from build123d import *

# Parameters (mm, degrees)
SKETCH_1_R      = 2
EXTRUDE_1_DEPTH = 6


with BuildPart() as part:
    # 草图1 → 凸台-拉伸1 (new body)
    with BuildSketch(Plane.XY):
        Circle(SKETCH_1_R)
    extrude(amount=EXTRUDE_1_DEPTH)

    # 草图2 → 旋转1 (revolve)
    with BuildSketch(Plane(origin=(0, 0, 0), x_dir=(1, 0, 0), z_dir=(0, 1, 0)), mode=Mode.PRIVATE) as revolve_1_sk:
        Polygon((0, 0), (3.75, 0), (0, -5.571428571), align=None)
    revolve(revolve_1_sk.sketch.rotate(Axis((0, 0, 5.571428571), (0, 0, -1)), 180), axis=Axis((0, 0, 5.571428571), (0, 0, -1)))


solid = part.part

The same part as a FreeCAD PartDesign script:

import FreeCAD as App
import Part
import Sketcher
from FreeCAD import Vector
Q = App.Units.Quantity


def add_polygon(sketch, points):
    """Adds a closed chain of lines whose ends are joined by coincident constraints."""
    first, n = sketch.GeometryCount, len(points)
    for a, b in zip(points, points[1:] + points[:1]):
        sketch.addGeometry(Part.LineSegment(App.Vector(*a, 0), App.Vector(*b, 0)), False)
    for i in range(n):
        sketch.addConstraint(Sketcher.Constraint("Coincident", first + i, 2, first + (i + 1) % n, 1))

doc = App.newDocument("Part")
body = doc.addObject("PartDesign::Body", "Body")

sketch1 = body.newObject("Sketcher::SketchObject", "Sketch")
sketch1.AttachmentSupport = (doc.getObject("XY_Plane"), [""])
sketch1.MapMode = "FlatFace"
sketch1.addGeometry(Part.Circle(Vector(0, 0, 0), Vector(0, 0, 1), 2), False)
sketch1.addConstraint(Sketcher.Constraint("Coincident", 0, 3, -1, 1))
sketch1.addConstraint(Sketcher.Constraint("Diameter", 0, Q("4 mm")))
pad1 = body.newObject("PartDesign::Pad", "Pad")
pad1.Profile = sketch1
pad1.Length = 6

sketch2 = body.newObject("Sketcher::SketchObject", "Sketch001")
sketch2.AttachmentSupport = (doc.getObject("XZ_Plane"), [""])
sketch2.MapMode = "FlatFace"
add_polygon(sketch2, [(3.8, 0), (0, 0), (0, 5.6)])
sketch2.addConstraint(Sketcher.Constraint("Horizontal", 0))
sketch2.addConstraint(Sketcher.Constraint("Vertical", 1))
sketch2.addConstraint(Sketcher.Constraint("Coincident", 0, 2, -1, 1))
sketch2.addConstraint(Sketcher.Constraint("DistanceX", 0, 2, 0, 1, Q("3.75 mm")))
sketch2.addConstraint(Sketcher.Constraint("Distance", 2, Q("6.7159 mm")))
revolution = body.newObject("PartDesign::Revolution", "Revolution")
revolution.Profile = sketch2
revolution.ReferenceAxis = (sketch2, ["V_Axis"])
revolution.Angle = 360

doc.recompute()
